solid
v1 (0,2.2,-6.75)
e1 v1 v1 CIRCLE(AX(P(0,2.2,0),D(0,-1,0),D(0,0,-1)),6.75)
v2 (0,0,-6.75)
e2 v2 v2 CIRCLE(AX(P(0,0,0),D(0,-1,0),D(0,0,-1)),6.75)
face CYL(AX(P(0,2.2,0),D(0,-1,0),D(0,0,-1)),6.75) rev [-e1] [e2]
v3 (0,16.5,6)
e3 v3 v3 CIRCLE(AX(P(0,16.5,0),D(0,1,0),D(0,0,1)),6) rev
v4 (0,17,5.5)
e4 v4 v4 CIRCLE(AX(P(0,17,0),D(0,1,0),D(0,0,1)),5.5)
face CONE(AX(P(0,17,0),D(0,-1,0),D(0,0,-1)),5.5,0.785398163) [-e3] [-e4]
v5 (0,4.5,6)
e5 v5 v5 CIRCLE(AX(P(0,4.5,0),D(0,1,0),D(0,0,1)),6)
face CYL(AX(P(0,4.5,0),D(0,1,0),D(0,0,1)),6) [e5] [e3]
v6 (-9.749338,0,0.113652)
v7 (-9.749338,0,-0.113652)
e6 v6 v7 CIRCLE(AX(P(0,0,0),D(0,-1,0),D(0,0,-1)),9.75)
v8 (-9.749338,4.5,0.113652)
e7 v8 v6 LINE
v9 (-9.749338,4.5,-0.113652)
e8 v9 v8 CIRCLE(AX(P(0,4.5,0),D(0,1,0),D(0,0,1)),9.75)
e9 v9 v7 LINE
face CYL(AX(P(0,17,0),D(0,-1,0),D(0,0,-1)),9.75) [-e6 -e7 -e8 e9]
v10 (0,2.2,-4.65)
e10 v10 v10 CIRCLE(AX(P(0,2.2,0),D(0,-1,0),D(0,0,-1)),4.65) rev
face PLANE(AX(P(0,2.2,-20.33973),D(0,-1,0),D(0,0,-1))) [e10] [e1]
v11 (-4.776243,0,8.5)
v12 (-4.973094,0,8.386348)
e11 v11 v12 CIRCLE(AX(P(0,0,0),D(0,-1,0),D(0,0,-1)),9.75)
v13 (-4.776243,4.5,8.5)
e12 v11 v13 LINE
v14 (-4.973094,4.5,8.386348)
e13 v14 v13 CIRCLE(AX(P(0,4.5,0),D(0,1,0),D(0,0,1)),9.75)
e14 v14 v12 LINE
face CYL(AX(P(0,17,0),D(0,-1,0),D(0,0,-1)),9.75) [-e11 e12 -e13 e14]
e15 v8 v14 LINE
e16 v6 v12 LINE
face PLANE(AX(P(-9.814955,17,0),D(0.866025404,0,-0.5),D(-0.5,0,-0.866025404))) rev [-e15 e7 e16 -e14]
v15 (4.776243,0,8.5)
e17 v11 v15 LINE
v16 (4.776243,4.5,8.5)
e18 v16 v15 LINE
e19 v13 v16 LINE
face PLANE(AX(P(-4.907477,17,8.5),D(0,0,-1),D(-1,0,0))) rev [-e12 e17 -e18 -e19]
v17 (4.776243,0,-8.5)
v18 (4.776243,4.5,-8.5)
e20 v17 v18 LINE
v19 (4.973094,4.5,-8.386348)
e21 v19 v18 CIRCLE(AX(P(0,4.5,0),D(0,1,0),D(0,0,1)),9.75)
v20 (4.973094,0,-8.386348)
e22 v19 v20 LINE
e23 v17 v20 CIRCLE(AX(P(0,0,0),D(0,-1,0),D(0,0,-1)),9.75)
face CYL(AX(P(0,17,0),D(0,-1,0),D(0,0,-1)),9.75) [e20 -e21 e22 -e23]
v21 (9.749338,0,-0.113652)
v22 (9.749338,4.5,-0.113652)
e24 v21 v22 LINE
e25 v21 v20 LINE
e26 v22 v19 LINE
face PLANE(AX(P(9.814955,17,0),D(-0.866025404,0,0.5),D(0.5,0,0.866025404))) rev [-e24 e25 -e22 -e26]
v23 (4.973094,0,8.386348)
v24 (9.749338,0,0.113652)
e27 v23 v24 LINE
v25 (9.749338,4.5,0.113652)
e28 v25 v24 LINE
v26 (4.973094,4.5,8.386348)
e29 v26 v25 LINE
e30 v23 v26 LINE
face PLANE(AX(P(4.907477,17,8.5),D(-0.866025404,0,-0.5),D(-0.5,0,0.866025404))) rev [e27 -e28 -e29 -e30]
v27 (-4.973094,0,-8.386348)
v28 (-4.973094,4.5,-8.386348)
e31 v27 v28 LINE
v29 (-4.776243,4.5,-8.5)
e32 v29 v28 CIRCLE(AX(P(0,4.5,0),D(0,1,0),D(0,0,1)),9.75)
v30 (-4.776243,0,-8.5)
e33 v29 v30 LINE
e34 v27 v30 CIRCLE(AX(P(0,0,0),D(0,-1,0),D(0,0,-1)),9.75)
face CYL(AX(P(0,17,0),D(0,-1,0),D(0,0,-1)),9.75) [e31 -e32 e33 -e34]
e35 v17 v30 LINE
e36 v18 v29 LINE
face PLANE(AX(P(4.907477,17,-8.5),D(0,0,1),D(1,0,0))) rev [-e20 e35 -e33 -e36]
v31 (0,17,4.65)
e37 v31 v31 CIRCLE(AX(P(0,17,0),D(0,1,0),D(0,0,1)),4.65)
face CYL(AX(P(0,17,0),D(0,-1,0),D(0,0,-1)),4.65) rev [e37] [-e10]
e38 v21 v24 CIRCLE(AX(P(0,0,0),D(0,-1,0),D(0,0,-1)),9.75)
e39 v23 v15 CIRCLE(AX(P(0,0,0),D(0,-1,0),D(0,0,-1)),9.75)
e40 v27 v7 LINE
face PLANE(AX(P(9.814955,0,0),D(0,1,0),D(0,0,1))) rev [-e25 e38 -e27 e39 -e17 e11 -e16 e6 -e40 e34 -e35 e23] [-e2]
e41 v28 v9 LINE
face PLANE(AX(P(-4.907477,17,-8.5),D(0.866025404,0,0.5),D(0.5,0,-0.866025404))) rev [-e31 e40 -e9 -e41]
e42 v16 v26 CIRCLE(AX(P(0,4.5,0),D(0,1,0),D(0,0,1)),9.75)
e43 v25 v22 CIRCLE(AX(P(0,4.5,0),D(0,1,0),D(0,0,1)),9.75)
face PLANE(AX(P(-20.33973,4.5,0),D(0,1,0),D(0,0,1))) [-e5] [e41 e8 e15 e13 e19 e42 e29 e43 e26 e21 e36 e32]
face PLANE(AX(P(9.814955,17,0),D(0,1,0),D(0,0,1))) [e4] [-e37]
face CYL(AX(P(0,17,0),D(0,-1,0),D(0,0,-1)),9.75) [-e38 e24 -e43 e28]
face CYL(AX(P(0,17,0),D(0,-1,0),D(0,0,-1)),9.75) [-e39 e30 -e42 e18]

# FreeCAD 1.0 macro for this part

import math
import FreeCAD as App
import Part
import Sketcher

V = App.Vector
Q = App.Units.Quantity


def edges_at(feature, points):
    """Names of the edges that pass closest to the given points."""
    edges = feature.Shape.Edges
    near = lambda p: min(range(len(edges)), key=lambda i: edges[i].distToShape(Part.Vertex(*p))[0])
    return sorted({f"Edge{near(p) + 1}" for p in points})


def add_polygon(sketch, points):
    """Adds a closed chain of lines whose ends are joined by coincident constraints."""
    first, n = sketch.GeometryCount, len(points)
    for a, b in zip(points, points[1:] + points[:1]):
        sketch.addGeometry(Part.LineSegment(App.Vector(*a, 0), App.Vector(*b, 0)), False)
    for i in range(n):
        sketch.addConstraint(Sketcher.Constraint("Coincident", first + i, 2, first + (i + 1) % n, 1))

doc = App.newDocument("Part")
body = doc.addObject("PartDesign::Body", "Body")

sketch1 = body.newObject("Sketcher::SketchObject", "Sketch")
sketch1.AttachmentSupport = (doc.getObject("XZ_Plane"), [""])
sketch1.MapMode = "FlatFace"
add_polygon(sketch1, [(9.8, 0), (4.9, -8.5), (-4.9, -8.5), (-9.8, 0), (-4.9, 8.5), (4.9, 8.5)])
sketch1.addGeometry(Part.Circle(V(0, 0, 0), V(0, 0, 1), 4.7), False)
sketch1.addConstraint([
    Sketcher.Constraint("Horizontal", 1),
    Sketcher.Constraint("Horizontal", 4),
    Sketcher.Constraint("Coincident", 6, 3, -1, 1),
    Sketcher.Constraint("Symmetric", 0, 2, 3, 2, -1, 1),
    Sketcher.Constraint("Symmetric", 2, 2, 5, 2, -1, 1),
    Sketcher.Constraint("PointOnObject", 2, 2, -1),
    Sketcher.Constraint("Parallel", 2, 5),
    Sketcher.Constraint("Vertical", 1, 2, 3, 2),
    Sketcher.Constraint("Diameter", 6, 9.3),
    Sketcher.Constraint("Angle", 0, Q("-120 deg")),
    Sketcher.Constraint("DistanceY", 1, 2, 3, 2, 17.0),
    Sketcher.Constraint("DistanceX", 1, 2, 1, 1, 9.814955),
])
pad1 = body.newObject("PartDesign::Pad", "Pad")
pad1.Profile = sketch1
pad1.Length = 17
pad1.Reversed = True

sketch2 = body.newObject("Sketcher::SketchObject", "Sketch001")
sketch2.AttachmentSupport = (doc.getObject("XZ_Plane"), [""])
sketch2.MapMode = "FlatFace"
sketch2.AttachmentOffset = App.Placement(V(0, 0, -17), App.Rotation())
add_polygon(sketch2, [(-5, 8), (5, 8), (10, 0), (5, -8), (-5, -8), (-10, 0)])
sketch2.addGeometry(Part.Circle(V(0, 0, 0), V(0, 0, 1), 6), False)
sketch2.addConstraint([
    Sketcher.Constraint("Horizontal", 0),
    Sketcher.Constraint("Horizontal", 3),
    Sketcher.Constraint("Coincident", 6, 3, -1, 1),
    Sketcher.Constraint("Symmetric", 0, 2, 3, 2, -1, 1),
    Sketcher.Constraint("Symmetric", 1, 2, 4, 2, -1, 1),
    Sketcher.Constraint("PointOnObject", 1, 2, -1),
    Sketcher.Constraint("Parallel", 2, 5),
    Sketcher.Constraint("Vertical", 0, 2, 2, 2),
    Sketcher.Constraint("Diameter", 6, 12.0),
    Sketcher.Constraint("Angle", 1, Q("-60 deg")),
    Sketcher.Constraint("DistanceY", 2, 2, 0, 2, 17.0),
    Sketcher.Constraint("DistanceX", 0, 1, 0, 2, 9.814955),
])
pocket1 = body.newObject("PartDesign::Pocket", "Pocket")
pocket1.Profile = sketch2
pocket1.Length = 12.5
pocket1.Reversed = True

sketch3 = body.newObject("Sketcher::SketchObject", "Sketch002")
sketch3.AttachmentSupport = (doc.getObject("XZ_Plane"), [""])
sketch3.MapMode = "FlatFace"
sketch3.addGeometry([
    Part.Circle(V(0, 0, 0), V(0, 0, 1), 6.8),
    Part.Circle(V(0, 0, 0), V(0, 0, 1), 4.7),
], False)
sketch3.addConstraint([
    Sketcher.Constraint("Coincident", 0, 3, -1, 1),
    Sketcher.Constraint("Coincident", 1, 3, -1, 1),
    Sketcher.Constraint("Diameter", 0, 13.5),
    Sketcher.Constraint("Diameter", 1, 9.3),
])
pocket2 = body.newObject("PartDesign::Pocket", "Pocket001")
pocket2.Profile = sketch3
pocket2.Length = 2.2
doc.recompute()

chamfer = body.newObject("PartDesign::Chamfer", "Chamfer")
chamfer.Base = (pocket2, edges_at(pocket2, [(-6, 17, 0)]))
chamfer.Size = 0.5

sketch4 = body.newObject("Sketcher::SketchObject", "Sketch003")
sketch4.AttachmentSupport = (doc.getObject("XZ_Plane"), [""])
sketch4.MapMode = "FlatFace"
sketch4.addGeometry([
    Part.ArcOfCircle(Part.Circle(V(0, 0, 0), V(0, 0, 1), 9.75), math.radians(179.33), math.radians(180.67)),
    Part.LineSegment(V(-9.75, 0.11, 0), V(-9.81, 0, 0)),
    Part.LineSegment(V(-9.81, 0, 0), V(-9.75, -0.11, 0)),
    Part.ArcOfCircle(Part.Circle(V(0, 0, 0), V(0, 0, 1), 9.75), math.radians(119.33), math.radians(120.67)),
    Part.LineSegment(V(-4.78, 8.5, 0), V(-4.91, 8.5, 0)),
    Part.LineSegment(V(-4.91, 8.5, 0), V(-4.97, 8.39, 0)),
    Part.ArcOfCircle(Part.Circle(V(0, 0, 0), V(0, 0, 1), 9.75), math.radians(59.33), math.radians(60.67)),
    Part.LineSegment(V(4.97, 8.39, 0), V(4.91, 8.5, 0)),
    Part.LineSegment(V(4.91, 8.5, 0), V(4.78, 8.5, 0)),
    Part.ArcOfCircle(Part.Circle(V(0, 0, 0), V(0, 0, 1), 9.75), math.radians(0), math.radians(0.67)),
    Part.ArcOfCircle(Part.Circle(V(0, 0, 0), V(0, 0, 1), 9.75), math.radians(-0.67), math.radians(0)),
    Part.LineSegment(V(9.75, -0.11, 0), V(9.81, 0, 0)),
    Part.LineSegment(V(9.81, 0, 0), V(9.75, 0.11, 0)),
    Part.LineSegment(V(4.91, -8.5, 0), V(4.97, -8.39, 0)),
    Part.ArcOfCircle(Part.Circle(V(0, 0, 0), V(0, 0, 1), 9.75), math.radians(-60.67), math.radians(-59.33)),
    Part.LineSegment(V(4.78, -8.5, 0), V(4.91, -8.5, 0)),
    Part.LineSegment(V(-4.91, -8.5, 0), V(-4.78, -8.5, 0)),
    Part.ArcOfCircle(Part.Circle(V(0, 0, 0), V(0, 0, 1), 9.75), math.radians(-120.67), math.radians(-119.33)),
    Part.LineSegment(V(-4.97, -8.39, 0), V(-4.91, -8.5, 0)),
], False)
sketch4.addConstraint([
    Sketcher.Constraint("Coincident", 0, 1, 1, 1),
    Sketcher.Constraint("Coincident", 1, 2, 2, 1),
    Sketcher.Constraint("Coincident", 2, 2, 0, 2),
    Sketcher.Constraint("Coincident", 3, 1, 4, 1),
    Sketcher.Constraint("Coincident", 4, 2, 5, 1),
    Sketcher.Constraint("Coincident", 5, 2, 3, 2),
    Sketcher.Constraint("Coincident", 6, 1, 7, 1),
    Sketcher.Constraint("Coincident", 7, 2, 8, 1),
    Sketcher.Constraint("Coincident", 8, 2, 6, 2),
    Sketcher.Constraint("Tangent", 9, 1, 10, 2),
    Sketcher.Constraint("Coincident", 10, 1, 11, 1),
    Sketcher.Constraint("Coincident", 11, 2, 12, 1),
    Sketcher.Constraint("Coincident", 12, 2, 9, 2),
    Sketcher.Constraint("Coincident", 13, 2, 14, 2),
    Sketcher.Constraint("Coincident", 14, 1, 15, 1),
    Sketcher.Constraint("Coincident", 15, 2, 13, 1),
    Sketcher.Constraint("Coincident", 16, 2, 17, 2),
    Sketcher.Constraint("Coincident", 17, 1, 18, 1),
    Sketcher.Constraint("Coincident", 18, 2, 16, 1),
    Sketcher.Constraint("Horizontal", 4),
    Sketcher.Constraint("Horizontal", 8),
    Sketcher.Constraint("Horizontal", 15),
    Sketcher.Constraint("Horizontal", 16),
    Sketcher.Constraint("Coincident", 0, 3, -1, 1),
    Sketcher.Constraint("Coincident", 3, 3, -1, 1),
    Sketcher.Constraint("Coincident", 6, 3, -1, 1),
    Sketcher.Constraint("Coincident", 14, 3, -1, 1),
    Sketcher.Constraint("Coincident", 17, 3, -1, 1),
    Sketcher.Constraint("Equal", 0, 3),
    Sketcher.Constraint("Equal", 3, 6),
    Sketcher.Constraint("Equal", 9, 10),
    Sketcher.Constraint("Equal", 6, 14),
    Sketcher.Constraint("Equal", 14, 17),
    Sketcher.Constraint("Symmetric", 0, 1, 10, 1, -1, 1),
    Sketcher.Constraint("Symmetric", 1, 2, 11, 2, -1, 1),
    Sketcher.Constraint("Symmetric", 2, 2, 12, 2, -1, 1),
    Sketcher.Constraint("Symmetric", 4, 2, 15, 2, -1, 1),
    Sketcher.Constraint("Symmetric", 7, 2, 18, 2, -1, 1),
    Sketcher.Constraint("Symmetric", 4, 2, 7, 2, -2),
    Sketcher.Constraint("PointOnObject", 1, 2, -1),
    Sketcher.Constraint("PointOnObject", 9, 1, -1),
    Sketcher.Constraint("Parallel", 1, 5),
    Sketcher.Constraint("Parallel", 2, 7),
    Sketcher.Constraint("Parallel", 11, 13),
    Sketcher.Constraint("Parallel", 12, 18),
    Sketcher.Constraint("Horizontal", 5, 2, 6, 1),
    Sketcher.Constraint("Equal", 2, 5),
    Sketcher.Constraint("Angle", 1, Q("-120 deg")),
    Sketcher.Constraint("Radius", 0, 9.75),
    Sketcher.Constraint("DistanceY", -1, 1, 3, 1, 8.5),
    Sketcher.Constraint("Radius", 9, 9.75002),
    Sketcher.Constraint("DistanceX", 4, 2, 4, 1, 0.131234),
])
pocket3 = body.newObject("PartDesign::Pocket", "Pocket002")
pocket3.Profile = sketch4
pocket3.Type = "ThroughAll"

doc.recompute()
